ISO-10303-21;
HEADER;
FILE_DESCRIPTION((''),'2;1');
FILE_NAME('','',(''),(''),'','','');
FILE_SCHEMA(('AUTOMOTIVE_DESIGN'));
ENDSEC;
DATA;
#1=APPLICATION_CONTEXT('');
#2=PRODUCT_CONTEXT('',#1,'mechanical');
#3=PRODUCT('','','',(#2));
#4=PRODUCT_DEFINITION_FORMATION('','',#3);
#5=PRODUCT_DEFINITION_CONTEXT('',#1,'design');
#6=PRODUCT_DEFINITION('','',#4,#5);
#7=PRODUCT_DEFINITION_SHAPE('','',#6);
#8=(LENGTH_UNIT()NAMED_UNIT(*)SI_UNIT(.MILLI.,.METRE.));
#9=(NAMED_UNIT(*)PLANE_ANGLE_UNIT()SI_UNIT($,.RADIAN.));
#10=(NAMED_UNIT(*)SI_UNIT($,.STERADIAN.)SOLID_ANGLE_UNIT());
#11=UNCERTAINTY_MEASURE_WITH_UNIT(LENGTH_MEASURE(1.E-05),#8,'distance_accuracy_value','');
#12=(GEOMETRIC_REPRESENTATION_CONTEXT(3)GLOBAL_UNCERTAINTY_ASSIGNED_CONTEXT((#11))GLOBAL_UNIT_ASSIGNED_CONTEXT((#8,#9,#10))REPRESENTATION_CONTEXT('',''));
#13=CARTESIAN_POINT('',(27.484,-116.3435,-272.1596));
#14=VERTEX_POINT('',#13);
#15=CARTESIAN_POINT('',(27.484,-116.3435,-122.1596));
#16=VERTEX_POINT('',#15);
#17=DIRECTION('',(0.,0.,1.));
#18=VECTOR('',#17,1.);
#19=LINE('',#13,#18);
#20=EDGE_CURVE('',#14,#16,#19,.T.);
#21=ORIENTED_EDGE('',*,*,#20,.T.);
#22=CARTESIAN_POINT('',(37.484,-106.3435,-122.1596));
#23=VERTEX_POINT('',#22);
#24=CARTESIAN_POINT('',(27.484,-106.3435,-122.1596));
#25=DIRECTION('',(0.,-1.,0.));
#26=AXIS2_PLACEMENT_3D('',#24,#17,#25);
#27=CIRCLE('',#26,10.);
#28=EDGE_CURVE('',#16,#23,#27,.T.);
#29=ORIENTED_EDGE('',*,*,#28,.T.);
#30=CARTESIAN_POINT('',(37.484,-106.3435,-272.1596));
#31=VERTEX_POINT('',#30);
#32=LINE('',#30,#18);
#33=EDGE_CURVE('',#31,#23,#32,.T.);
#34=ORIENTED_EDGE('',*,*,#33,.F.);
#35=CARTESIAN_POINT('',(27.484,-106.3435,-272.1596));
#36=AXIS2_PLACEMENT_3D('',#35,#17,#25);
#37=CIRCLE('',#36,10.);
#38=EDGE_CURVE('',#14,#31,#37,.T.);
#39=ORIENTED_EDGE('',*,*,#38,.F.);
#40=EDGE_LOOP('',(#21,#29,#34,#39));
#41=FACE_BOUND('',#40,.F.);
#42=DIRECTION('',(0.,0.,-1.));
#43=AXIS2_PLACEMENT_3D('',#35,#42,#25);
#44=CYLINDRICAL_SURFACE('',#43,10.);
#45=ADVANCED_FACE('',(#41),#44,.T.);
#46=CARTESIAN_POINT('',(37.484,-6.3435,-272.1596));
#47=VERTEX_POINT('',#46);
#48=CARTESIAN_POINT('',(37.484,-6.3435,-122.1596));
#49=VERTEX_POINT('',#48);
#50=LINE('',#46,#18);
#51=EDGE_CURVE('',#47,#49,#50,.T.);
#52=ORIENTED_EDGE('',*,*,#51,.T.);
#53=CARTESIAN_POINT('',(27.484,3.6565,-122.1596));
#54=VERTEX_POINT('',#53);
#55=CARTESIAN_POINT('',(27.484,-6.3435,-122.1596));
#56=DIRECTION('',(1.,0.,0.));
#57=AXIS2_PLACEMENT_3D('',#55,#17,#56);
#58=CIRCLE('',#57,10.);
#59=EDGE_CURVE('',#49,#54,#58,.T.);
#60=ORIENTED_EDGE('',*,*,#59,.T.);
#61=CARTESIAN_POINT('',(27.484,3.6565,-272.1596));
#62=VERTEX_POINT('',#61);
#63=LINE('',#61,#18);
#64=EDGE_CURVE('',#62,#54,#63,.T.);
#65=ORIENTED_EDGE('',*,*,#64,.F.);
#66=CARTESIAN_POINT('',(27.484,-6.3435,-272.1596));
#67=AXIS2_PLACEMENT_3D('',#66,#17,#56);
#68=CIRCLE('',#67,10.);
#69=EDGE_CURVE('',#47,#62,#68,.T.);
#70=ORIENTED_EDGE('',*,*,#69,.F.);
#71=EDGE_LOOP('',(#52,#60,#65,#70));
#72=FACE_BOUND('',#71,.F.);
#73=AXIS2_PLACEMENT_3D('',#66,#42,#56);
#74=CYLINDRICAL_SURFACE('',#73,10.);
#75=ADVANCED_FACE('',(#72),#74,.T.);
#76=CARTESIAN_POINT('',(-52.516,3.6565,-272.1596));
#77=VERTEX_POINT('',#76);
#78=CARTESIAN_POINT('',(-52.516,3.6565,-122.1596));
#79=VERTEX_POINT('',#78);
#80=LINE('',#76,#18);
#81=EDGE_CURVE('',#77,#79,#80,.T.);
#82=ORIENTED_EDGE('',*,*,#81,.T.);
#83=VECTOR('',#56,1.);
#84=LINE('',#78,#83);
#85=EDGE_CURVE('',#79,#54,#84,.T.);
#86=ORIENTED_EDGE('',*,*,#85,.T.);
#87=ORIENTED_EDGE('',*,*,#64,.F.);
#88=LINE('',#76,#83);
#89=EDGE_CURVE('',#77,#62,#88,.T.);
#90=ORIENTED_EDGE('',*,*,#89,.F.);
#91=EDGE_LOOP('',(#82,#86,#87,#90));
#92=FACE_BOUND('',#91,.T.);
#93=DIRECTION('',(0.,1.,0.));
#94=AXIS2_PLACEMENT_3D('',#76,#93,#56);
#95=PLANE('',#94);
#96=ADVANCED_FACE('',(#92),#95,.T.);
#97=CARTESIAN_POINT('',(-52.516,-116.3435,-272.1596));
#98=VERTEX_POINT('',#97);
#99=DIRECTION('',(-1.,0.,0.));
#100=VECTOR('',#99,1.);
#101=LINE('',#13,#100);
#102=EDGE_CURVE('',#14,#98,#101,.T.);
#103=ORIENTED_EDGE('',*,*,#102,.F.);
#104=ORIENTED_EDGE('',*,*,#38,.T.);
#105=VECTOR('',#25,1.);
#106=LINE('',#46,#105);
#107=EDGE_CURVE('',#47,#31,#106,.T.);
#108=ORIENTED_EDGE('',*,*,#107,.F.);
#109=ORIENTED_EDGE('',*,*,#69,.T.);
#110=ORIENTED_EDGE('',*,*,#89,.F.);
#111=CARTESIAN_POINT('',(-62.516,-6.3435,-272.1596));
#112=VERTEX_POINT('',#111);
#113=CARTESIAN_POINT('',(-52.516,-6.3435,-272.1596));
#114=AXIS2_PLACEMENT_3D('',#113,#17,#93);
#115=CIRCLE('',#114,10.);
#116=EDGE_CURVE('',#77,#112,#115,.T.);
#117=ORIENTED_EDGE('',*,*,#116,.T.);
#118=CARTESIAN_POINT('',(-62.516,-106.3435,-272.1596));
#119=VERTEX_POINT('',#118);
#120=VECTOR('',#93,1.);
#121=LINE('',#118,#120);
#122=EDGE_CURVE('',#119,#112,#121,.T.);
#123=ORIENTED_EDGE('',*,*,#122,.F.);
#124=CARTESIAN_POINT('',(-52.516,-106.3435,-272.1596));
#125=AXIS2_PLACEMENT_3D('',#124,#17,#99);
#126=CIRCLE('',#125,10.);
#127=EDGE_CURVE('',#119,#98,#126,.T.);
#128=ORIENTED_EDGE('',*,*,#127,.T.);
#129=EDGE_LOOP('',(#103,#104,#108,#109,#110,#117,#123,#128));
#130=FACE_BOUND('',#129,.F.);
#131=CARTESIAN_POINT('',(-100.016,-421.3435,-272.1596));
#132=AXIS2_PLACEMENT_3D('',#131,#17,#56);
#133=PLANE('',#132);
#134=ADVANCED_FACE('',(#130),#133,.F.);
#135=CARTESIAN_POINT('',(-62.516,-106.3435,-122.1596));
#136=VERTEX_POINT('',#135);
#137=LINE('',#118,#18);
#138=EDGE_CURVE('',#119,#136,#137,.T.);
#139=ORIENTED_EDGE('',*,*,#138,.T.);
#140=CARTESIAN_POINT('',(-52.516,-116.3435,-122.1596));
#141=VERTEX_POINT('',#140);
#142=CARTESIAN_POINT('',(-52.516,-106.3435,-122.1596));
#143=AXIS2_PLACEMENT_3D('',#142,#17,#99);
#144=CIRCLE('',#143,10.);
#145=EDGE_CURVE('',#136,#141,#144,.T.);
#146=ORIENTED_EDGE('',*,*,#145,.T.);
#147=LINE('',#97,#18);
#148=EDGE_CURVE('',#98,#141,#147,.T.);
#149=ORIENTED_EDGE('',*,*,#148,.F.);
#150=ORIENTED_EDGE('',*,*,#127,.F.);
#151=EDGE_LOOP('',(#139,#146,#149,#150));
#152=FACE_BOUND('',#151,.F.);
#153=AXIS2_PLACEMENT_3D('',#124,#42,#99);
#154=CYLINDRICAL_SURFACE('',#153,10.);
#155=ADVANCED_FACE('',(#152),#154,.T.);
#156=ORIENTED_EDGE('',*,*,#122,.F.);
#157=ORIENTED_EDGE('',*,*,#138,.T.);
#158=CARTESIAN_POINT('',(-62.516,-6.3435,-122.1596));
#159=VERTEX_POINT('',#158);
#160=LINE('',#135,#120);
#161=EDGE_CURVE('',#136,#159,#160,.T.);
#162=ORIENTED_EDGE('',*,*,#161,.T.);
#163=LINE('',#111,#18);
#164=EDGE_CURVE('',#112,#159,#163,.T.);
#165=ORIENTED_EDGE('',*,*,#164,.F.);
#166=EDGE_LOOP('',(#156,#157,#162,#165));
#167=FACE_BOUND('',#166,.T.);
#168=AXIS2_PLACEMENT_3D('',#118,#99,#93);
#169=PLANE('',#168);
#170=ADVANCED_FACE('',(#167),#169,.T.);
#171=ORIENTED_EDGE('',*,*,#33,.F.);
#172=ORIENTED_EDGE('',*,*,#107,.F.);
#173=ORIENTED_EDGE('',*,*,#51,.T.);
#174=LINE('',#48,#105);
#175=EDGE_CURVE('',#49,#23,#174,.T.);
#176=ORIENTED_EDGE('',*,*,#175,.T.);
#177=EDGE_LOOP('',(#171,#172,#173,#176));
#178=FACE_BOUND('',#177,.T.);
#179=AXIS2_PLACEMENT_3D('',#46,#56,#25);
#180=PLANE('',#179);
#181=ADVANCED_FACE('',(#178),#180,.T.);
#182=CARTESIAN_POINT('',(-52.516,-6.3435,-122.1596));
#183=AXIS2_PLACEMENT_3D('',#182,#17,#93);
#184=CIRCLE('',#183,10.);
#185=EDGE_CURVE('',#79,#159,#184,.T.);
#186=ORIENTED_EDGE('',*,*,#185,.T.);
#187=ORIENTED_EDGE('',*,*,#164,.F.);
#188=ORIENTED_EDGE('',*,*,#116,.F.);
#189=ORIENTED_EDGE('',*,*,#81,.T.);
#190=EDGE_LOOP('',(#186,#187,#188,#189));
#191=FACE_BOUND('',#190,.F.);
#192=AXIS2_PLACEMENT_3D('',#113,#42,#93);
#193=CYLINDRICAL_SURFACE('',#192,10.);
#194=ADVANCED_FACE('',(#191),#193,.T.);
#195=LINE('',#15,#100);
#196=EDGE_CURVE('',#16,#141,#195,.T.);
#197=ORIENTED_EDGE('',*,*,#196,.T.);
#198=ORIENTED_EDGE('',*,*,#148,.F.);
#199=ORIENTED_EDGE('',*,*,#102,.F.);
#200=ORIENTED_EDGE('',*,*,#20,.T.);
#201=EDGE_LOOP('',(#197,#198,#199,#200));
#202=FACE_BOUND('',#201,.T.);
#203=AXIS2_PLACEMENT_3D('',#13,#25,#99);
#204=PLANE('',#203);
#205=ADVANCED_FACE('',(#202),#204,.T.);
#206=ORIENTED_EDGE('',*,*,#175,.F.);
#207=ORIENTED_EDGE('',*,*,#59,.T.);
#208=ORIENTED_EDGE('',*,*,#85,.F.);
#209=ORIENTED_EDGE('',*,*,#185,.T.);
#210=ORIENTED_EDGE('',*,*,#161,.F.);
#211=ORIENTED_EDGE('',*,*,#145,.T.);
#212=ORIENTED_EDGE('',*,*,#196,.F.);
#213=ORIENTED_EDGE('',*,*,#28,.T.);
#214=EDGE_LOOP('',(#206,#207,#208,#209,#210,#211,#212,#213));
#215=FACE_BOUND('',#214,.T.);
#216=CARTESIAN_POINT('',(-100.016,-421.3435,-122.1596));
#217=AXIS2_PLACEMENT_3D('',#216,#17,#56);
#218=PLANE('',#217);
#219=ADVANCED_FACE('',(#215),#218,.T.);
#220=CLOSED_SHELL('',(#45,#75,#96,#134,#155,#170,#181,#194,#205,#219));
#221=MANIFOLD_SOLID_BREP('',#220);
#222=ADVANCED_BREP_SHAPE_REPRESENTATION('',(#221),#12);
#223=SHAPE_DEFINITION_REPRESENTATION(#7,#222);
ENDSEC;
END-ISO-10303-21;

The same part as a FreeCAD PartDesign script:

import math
import FreeCAD as App
import Part
import Sketcher

V = App.Vector
Q = App.Units.Quantity

doc = App.newDocument("Part")
body = doc.addObject("PartDesign::Body", "Body")

# Sketch on XY plane
sketch1 = body.newObject("Sketcher::SketchObject", "Sketch")
sketch1.AttachmentSupport = (doc.getObject("XY_Plane"), [""])
sketch1.MapMode = "FlatFace"
sketch1.AttachmentOffset = App.Placement(V(0, 0, -272.1596), App.Rotation())
sketch1.addGeometry(Part.LineSegment(V(27.484, 3.6565, 0), V(-52.516, 3.6565, 0)), False)
sketch1.addGeometry(Part.ArcOfCircle(Part.Circle(V(-52.516, -6.3435, 0), V(0, 0, 1), 10), math.radians(90), math.radians(180)), False)
sketch1.addGeometry(Part.LineSegment(V(-62.516, -6.3435, 0), V(-62.516, -106.3435, 0)), False)
sketch1.addGeometry(Part.ArcOfCircle(Part.Circle(V(-52.516, -106.3435, 0), V(0, 0, 1), 10), math.radians(180), math.radians(270)), False)
sketch1.addGeometry(Part.LineSegment(V(-52.516, -116.3435, 0), V(27.484, -116.3435, 0)), False)
sketch1.addGeometry(Part.ArcOfCircle(Part.Circle(V(27.484, -106.3435, 0), V(0, 0, 1), 10), math.radians(-90), math.radians(0)), False)
sketch1.addGeometry(Part.LineSegment(V(37.484, -106.3435, 0), V(37.484, -6.3435, 0)), False)
sketch1.addGeometry(Part.ArcOfCircle(Part.Circle(V(27.484, -6.3435, 0), V(0, 0, 1), 10), math.radians(0), math.radians(90)), False)
sketch1.addConstraint(Sketcher.Constraint("Tangent", 0, 2, 1, 1))
sketch1.addConstraint(Sketcher.Constraint("Tangent", 1, 2, 2, 1))
sketch1.addConstraint(Sketcher.Constraint("Tangent", 2, 2, 3, 1))
sketch1.addConstraint(Sketcher.Constraint("Tangent", 3, 2, 4, 1))
sketch1.addConstraint(Sketcher.Constraint("Tangent", 4, 2, 5, 1))
sketch1.addConstraint(Sketcher.Constraint("Tangent", 5, 2, 6, 1))
sketch1.addConstraint(Sketcher.Constraint("Tangent", 6, 2, 7, 1))
sketch1.addConstraint(Sketcher.Constraint("Tangent", 7, 2, 0, 1))
sketch1.addConstraint(Sketcher.Constraint("Horizontal", 0))
sketch1.addConstraint(Sketcher.Constraint("Vertical", 2))
sketch1.addConstraint(Sketcher.Constraint("Horizontal", 4))
sketch1.addConstraint(Sketcher.Constraint("Vertical", 6))
sketch1.addConstraint(Sketcher.Constraint("Equal", 1, 3))
sketch1.addConstraint(Sketcher.Constraint("Equal", 3, 5))
sketch1.addConstraint(Sketcher.Constraint("Equal", 5, 7))
sketch1.addConstraint(Sketcher.Constraint("Radius", 1, Q("0.3937 in")))
sketch1.addConstraint(Sketcher.Constraint("DistanceY", 2, 2, 2, 1, Q("3.937 in")))
sketch1.addConstraint(Sketcher.Constraint("DistanceX", 2, 2, 5, 2, Q("3.937 in")))
sketch1.addConstraint(Sketcher.Constraint("DistanceX", 1, 3, -1, 1, Q("52.516 mm")))
sketch1.addConstraint(Sketcher.Constraint("DistanceY", 1, 3, -1, 1, Q("6.3435 mm")))
pad1 = body.newObject("PartDesign::Pad", "Pad")
pad1.Profile = sketch1
pad1.Length = Q("5.9055118 in")

doc.recompute()
